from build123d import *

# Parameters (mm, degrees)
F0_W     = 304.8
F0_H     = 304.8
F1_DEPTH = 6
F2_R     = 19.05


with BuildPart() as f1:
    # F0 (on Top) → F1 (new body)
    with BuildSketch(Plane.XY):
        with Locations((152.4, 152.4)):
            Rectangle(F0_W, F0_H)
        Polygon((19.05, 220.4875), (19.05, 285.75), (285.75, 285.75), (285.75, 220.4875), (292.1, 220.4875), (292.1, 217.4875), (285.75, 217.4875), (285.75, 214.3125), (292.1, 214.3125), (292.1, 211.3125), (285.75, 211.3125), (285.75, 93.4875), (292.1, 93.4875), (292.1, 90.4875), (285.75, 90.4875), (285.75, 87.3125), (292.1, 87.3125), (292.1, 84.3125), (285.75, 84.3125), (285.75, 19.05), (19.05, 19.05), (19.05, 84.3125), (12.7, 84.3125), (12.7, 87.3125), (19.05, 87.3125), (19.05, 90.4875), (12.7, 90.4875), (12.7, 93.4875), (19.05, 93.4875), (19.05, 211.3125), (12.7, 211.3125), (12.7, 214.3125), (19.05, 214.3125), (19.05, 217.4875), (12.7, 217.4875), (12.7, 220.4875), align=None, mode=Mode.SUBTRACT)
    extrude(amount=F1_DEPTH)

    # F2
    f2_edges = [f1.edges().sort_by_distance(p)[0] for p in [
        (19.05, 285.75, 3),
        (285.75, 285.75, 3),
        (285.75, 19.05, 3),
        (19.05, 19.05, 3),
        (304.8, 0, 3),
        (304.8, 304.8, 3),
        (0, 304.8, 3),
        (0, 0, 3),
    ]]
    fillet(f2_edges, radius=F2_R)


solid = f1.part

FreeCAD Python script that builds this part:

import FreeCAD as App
import Part
import Sketcher
from FreeCAD import Vector
Q = App.Units.Quantity


def edges_at(feature, points):
    """Names of the edges that pass closest to the given points."""
    edges = feature.Shape.Edges
    near = lambda p: min(range(len(edges)), key=lambda i: edges[i].distToShape(Part.Vertex(*p))[0])
    return sorted({f"Edge{near(p) + 1}" for p in points})

doc = App.newDocument("Part")
body = doc.addObject("PartDesign::Body", "Body")

# Sketch on XY plane
sketch1 = doc.addObject("Sketcher::SketchObject", "Sketch")
body.addObject(sketch1)
sketch1.AttachmentSupport = (doc.XY_Plane, [""])
sketch1.MapMode = "FlatFace"
sketch1.addGeometry([
    Part.LineSegment(Vector(0, 304.8, 0), Vector(0, 0, 0)),  # 0
    Part.LineSegment(Vector(0, 0, 0), Vector(304.8, 0, 0)),  # 1
    Part.LineSegment(Vector(304.8, 0, 0), Vector(304.8, 304.8, 0)),  # 2
    Part.LineSegment(Vector(304.8, 304.8, 0), Vector(0, 304.8, 0)),  # 3
    Part.LineSegment(Vector(12.7, 220.4875, 0), Vector(19.05, 220.4875, 0)),  # 4
    Part.LineSegment(Vector(19.05, 220.4875, 0), Vector(19.05, 285.75, 0)),  # 5
    Part.LineSegment(Vector(19.05, 285.75, 0), Vector(285.75, 285.75, 0)),  # 6
    Part.LineSegment(Vector(285.75, 285.75, 0), Vector(285.75, 220.4875, 0)),  # 7
    Part.LineSegment(Vector(285.75, 220.4875, 0), Vector(292.1, 220.4875, 0)),  # 8
    Part.LineSegment(Vector(292.1, 220.4875, 0), Vector(292.1, 217.4875, 0)),  # 9
    Part.LineSegment(Vector(292.1, 217.4875, 0), Vector(285.75, 217.4875, 0)),  # 10
    Part.LineSegment(Vector(285.75, 217.4875, 0), Vector(285.75, 214.3125, 0)),  # 11
    Part.LineSegment(Vector(285.75, 214.3125, 0), Vector(292.1, 214.3125, 0)),  # 12
    Part.LineSegment(Vector(292.1, 214.3125, 0), Vector(292.1, 211.3125, 0)),  # 13
    Part.LineSegment(Vector(292.1, 211.3125, 0), Vector(285.75, 211.3125, 0)),  # 14
    Part.LineSegment(Vector(285.75, 211.3125, 0), Vector(285.75, 93.4875, 0)),  # 15
    Part.LineSegment(Vector(285.75, 93.4875, 0), Vector(292.1, 93.4875, 0)),  # 16
    Part.LineSegment(Vector(292.1, 93.4875, 0), Vector(292.1, 90.4875, 0)),  # 17
    Part.LineSegment(Vector(292.1, 90.4875, 0), Vector(285.75, 90.4875, 0)),  # 18
    Part.LineSegment(Vector(285.75, 90.4875, 0), Vector(285.75, 87.3125, 0)),  # 19
    Part.LineSegment(Vector(285.75, 87.3125, 0), Vector(292.1, 87.3125, 0)),  # 20
    Part.LineSegment(Vector(292.1, 87.3125, 0), Vector(292.1, 84.3125, 0)),  # 21
    Part.LineSegment(Vector(292.1, 84.3125, 0), Vector(285.75, 84.3125, 0)),  # 22
    Part.LineSegment(Vector(285.75, 84.3125, 0), Vector(285.75, 19.05, 0)),  # 23
    Part.LineSegment(Vector(285.75, 19.05, 0), Vector(19.05, 19.05, 0)),  # 24
    Part.LineSegment(Vector(19.05, 19.05, 0), Vector(19.05, 84.3125, 0)),  # 25
    Part.LineSegment(Vector(19.05, 84.3125, 0), Vector(12.7, 84.3125, 0)),  # 26
    Part.LineSegment(Vector(12.7, 84.3125, 0), Vector(12.7, 87.3125, 0)),  # 27
    Part.LineSegment(Vector(12.7, 87.3125, 0), Vector(19.05, 87.3125, 0)),  # 28
    Part.LineSegment(Vector(19.05, 87.3125, 0), Vector(19.05, 90.4875, 0)),  # 29
    Part.LineSegment(Vector(19.05, 90.4875, 0), Vector(12.7, 90.4875, 0)),  # 30
    Part.LineSegment(Vector(12.7, 90.4875, 0), Vector(12.7, 93.4875, 0)),  # 31
    Part.LineSegment(Vector(12.7, 93.4875, 0), Vector(19.05, 93.4875, 0)),  # 32
    Part.LineSegment(Vector(19.05, 93.4875, 0), Vector(19.05, 211.3125, 0)),  # 33
    Part.LineSegment(Vector(19.05, 211.3125, 0), Vector(12.7, 211.3125, 0)),  # 34
    Part.LineSegment(Vector(12.7, 211.3125, 0), Vector(12.7, 214.3125, 0)),  # 35
    Part.LineSegment(Vector(12.7, 214.3125, 0), Vector(19.05, 214.3125, 0)),  # 36
    Part.LineSegment(Vector(19.05, 214.3125, 0), Vector(19.05, 217.4875, 0)),  # 37
    Part.LineSegment(Vector(19.05, 217.4875, 0), Vector(12.7, 217.4875, 0)),  # 38
    Part.LineSegment(Vector(12.7, 217.4875, 0), Vector(12.7, 220.4875, 0)),  # 39
], False)
sketch1.addConstraint([
    Sketcher.Constraint("Coincident", 0, 2, 1, 1),
    Sketcher.Constraint("Coincident", 1, 2, 2, 1),
    Sketcher.Constraint("Coincident", 2, 2, 3, 1),
    Sketcher.Constraint("Coincident", 3, 2, 0, 1),
    Sketcher.Constraint("Coincident", 4, 2, 5, 1),
    Sketcher.Constraint("Coincident", 5, 2, 6, 1),
    Sketcher.Constraint("Coincident", 6, 2, 7, 1),
    Sketcher.Constraint("Coincident", 7, 2, 8, 1),
    Sketcher.Constraint("Coincident", 8, 2, 9, 1),
    Sketcher.Constraint("Coincident", 9, 2, 10, 1),
    Sketcher.Constraint("Coincident", 10, 2, 11, 1),
    Sketcher.Constraint("Coincident", 11, 2, 12, 1),
    Sketcher.Constraint("Coincident", 12, 2, 13, 1),
    Sketcher.Constraint("Coincident", 13, 2, 14, 1),
    Sketcher.Constraint("Coincident", 14, 2, 15, 1),
    Sketcher.Constraint("Coincident", 15, 2, 16, 1),
    Sketcher.Constraint("Coincident", 16, 2, 17, 1),
    Sketcher.Constraint("Coincident", 17, 2, 18, 1),
    Sketcher.Constraint("Coincident", 18, 2, 19, 1),
    Sketcher.Constraint("Coincident", 19, 2, 20, 1),
    Sketcher.Constraint("Coincident", 20, 2, 21, 1),
    Sketcher.Constraint("Coincident", 21, 2, 22, 1),
    Sketcher.Constraint("Coincident", 22, 2, 23, 1),
    Sketcher.Constraint("Coincident", 23, 2, 24, 1),
    Sketcher.Constraint("Coincident", 24, 2, 25, 1),
    Sketcher.Constraint("Coincident", 25, 2, 26, 1),
    Sketcher.Constraint("Coincident", 26, 2, 27, 1),
    Sketcher.Constraint("Coincident", 27, 2, 28, 1),
    Sketcher.Constraint("Coincident", 28, 2, 29, 1),
    Sketcher.Constraint("Coincident", 29, 2, 30, 1),
    Sketcher.Constraint("Coincident", 30, 2, 31, 1),
    Sketcher.Constraint("Coincident", 31, 2, 32, 1),
    Sketcher.Constraint("Coincident", 32, 2, 33, 1),
    Sketcher.Constraint("Coincident", 33, 2, 34, 1),
    Sketcher.Constraint("Coincident", 34, 2, 35, 1),
    Sketcher.Constraint("Coincident", 35, 2, 36, 1),
    Sketcher.Constraint("Coincident", 36, 2, 37, 1),
    Sketcher.Constraint("Coincident", 37, 2, 38, 1),
    Sketcher.Constraint("Coincident", 38, 2, 39, 1),
    Sketcher.Constraint("Coincident", 39, 2, 4, 1),
    Sketcher.Constraint("Vertical", 0),
    Sketcher.Constraint("Horizontal", 1),
    Sketcher.Constraint("Vertical", 2),
    Sketcher.Constraint("Horizontal", 3),
    Sketcher.Constraint("Horizontal", 4),
    Sketcher.Constraint("Vertical", 5),
    Sketcher.Constraint("Horizontal", 6),
    Sketcher.Constraint("Vertical", 7),
    Sketcher.Constraint("Horizontal", 8),
    Sketcher.Constraint("Vertical", 9),
    Sketcher.Constraint("Horizontal", 10),
    Sketcher.Constraint("Vertical", 11),
    Sketcher.Constraint("Horizontal", 12),
    Sketcher.Constraint("Vertical", 13),
    Sketcher.Constraint("Horizontal", 14),
    Sketcher.Constraint("Vertical", 15),
    Sketcher.Constraint("Horizontal", 16),
    Sketcher.Constraint("Vertical", 17),
    Sketcher.Constraint("Horizontal", 18),
    Sketcher.Constraint("Vertical", 19),
    Sketcher.Constraint("Horizontal", 20),
    Sketcher.Constraint("Vertical", 21),
    Sketcher.Constraint("Horizontal", 22),
    Sketcher.Constraint("Vertical", 23),
    Sketcher.Constraint("Horizontal", 24),
    Sketcher.Constraint("Vertical", 25),
    Sketcher.Constraint("Horizontal", 26),
    Sketcher.Constraint("Vertical", 27),
    Sketcher.Constraint("Horizontal", 28),
    Sketcher.Constraint("Vertical", 29),
    Sketcher.Constraint("Horizontal", 30),
    Sketcher.Constraint("Vertical", 31),
    Sketcher.Constraint("Horizontal", 32),
    Sketcher.Constraint("Vertical", 33),
    Sketcher.Constraint("Horizontal", 34),
    Sketcher.Constraint("Vertical", 35),
    Sketcher.Constraint("Horizontal", 36),
    Sketcher.Constraint("Vertical", 37),
    Sketcher.Constraint("Horizontal", 38),
    Sketcher.Constraint("Vertical", 39),
    Sketcher.Constraint("Coincident", 0, 2, -1, 1),
    Sketcher.Constraint("Horizontal", 4, 2, 7, 2),
    Sketcher.Constraint("Horizontal", 22, 2, 25, 2),
    Sketcher.Constraint("Horizontal", 20, 2, 27, 2),
    Sketcher.Constraint("Horizontal", 18, 2, 29, 2),
    Sketcher.Constraint("Horizontal", 16, 2, 31, 2),
    Sketcher.Constraint("Horizontal", 14, 2, 33, 2),
    Sketcher.Constraint("Horizontal", 12, 2, 35, 2),
    Sketcher.Constraint("Horizontal", 10, 2, 37, 2),
    Sketcher.Constraint("Vertical", 7, 2, 10, 2),
    Sketcher.Constraint("Vertical", 9, 2, 12, 2),
    Sketcher.Constraint("Vertical", 11, 2, 14, 2),
    Sketcher.Constraint("Vertical", 13, 2, 16, 2),
    Sketcher.Constraint("Vertical", 15, 2, 18, 2),
    Sketcher.Constraint("Vertical", 17, 2, 20, 2),
    Sketcher.Constraint("Vertical", 19, 2, 22, 2),
    Sketcher.Constraint("Vertical", 5, 2, 24, 2),
    Sketcher.Constraint("Vertical", 25, 2, 28, 2),
    Sketcher.Constraint("Vertical", 27, 2, 30, 2),
    Sketcher.Constraint("Vertical", 29, 2, 32, 2),
    Sketcher.Constraint("Vertical", 31, 2, 34, 2),
    Sketcher.Constraint("Vertical", 33, 2, 36, 2),
    Sketcher.Constraint("Vertical", 35, 2, 38, 2),
    Sketcher.Constraint("Equal", 4, 8),
    Sketcher.Constraint("Equal", 3, 0),
    Sketcher.Constraint("Equal", 9, 13),
    Sketcher.Constraint("Equal", 13, 17),
    Sketcher.Constraint("Equal", 11, 19),
    Sketcher.Constraint("Equal", 17, 21),
    Sketcher.Constraint("Equal", 7, 23),
    Sketcher.Constraint("DistanceX", 1, 1, 1, 2, Q("12 in")),
    Sketcher.Constraint("DistanceX", 6, 1, 6, 2, Q("10.5 in")),
    Sketcher.Constraint("DistanceX", 4, 1, 4, 2, Q("0.25 in")),
    Sketcher.Constraint("DistanceX", -1, 1, 8, 2, Q("11.5 in")),
    Sketcher.Constraint("DistanceY", 24, 2, 5, 2, Q("10.5 in")),
    Sketcher.Constraint("DistanceY", 11, 2, 11, 1, Q("0.125 in")),
    Sketcher.Constraint("DistanceY", -1, 1, 5, 2, Q("11.25 in")),
    Sketcher.Constraint("DistanceY", -1, 1, 9, 2, Q("8.5625 in")),
    Sketcher.Constraint("DistanceY", 5, 1, 5, 2, Q("65.2625 mm")),
])
pad1 = doc.addObject("PartDesign::Pad", "Pad")
body.addObject(pad1)
pad1.Profile = sketch1
pad1.Length = 6
doc.recompute()

fillet = doc.addObject("PartDesign::Fillet", "Fillet")
body.addObject(fillet)
fillet.Base = (pad1, edges_at(pad1, [
    (19.05, 285.75, 3),
    (285.75, 285.75, 3),
    (285.75, 19.05, 3),
    (19.05, 19.05, 3),
    (304.8, 0, 3),
    (304.8, 304.8, 3),
    (0, 304.8, 3),
    (0, 0, 3),
]))
fillet.Radius = Q("0.75 in")

doc.recompute()
